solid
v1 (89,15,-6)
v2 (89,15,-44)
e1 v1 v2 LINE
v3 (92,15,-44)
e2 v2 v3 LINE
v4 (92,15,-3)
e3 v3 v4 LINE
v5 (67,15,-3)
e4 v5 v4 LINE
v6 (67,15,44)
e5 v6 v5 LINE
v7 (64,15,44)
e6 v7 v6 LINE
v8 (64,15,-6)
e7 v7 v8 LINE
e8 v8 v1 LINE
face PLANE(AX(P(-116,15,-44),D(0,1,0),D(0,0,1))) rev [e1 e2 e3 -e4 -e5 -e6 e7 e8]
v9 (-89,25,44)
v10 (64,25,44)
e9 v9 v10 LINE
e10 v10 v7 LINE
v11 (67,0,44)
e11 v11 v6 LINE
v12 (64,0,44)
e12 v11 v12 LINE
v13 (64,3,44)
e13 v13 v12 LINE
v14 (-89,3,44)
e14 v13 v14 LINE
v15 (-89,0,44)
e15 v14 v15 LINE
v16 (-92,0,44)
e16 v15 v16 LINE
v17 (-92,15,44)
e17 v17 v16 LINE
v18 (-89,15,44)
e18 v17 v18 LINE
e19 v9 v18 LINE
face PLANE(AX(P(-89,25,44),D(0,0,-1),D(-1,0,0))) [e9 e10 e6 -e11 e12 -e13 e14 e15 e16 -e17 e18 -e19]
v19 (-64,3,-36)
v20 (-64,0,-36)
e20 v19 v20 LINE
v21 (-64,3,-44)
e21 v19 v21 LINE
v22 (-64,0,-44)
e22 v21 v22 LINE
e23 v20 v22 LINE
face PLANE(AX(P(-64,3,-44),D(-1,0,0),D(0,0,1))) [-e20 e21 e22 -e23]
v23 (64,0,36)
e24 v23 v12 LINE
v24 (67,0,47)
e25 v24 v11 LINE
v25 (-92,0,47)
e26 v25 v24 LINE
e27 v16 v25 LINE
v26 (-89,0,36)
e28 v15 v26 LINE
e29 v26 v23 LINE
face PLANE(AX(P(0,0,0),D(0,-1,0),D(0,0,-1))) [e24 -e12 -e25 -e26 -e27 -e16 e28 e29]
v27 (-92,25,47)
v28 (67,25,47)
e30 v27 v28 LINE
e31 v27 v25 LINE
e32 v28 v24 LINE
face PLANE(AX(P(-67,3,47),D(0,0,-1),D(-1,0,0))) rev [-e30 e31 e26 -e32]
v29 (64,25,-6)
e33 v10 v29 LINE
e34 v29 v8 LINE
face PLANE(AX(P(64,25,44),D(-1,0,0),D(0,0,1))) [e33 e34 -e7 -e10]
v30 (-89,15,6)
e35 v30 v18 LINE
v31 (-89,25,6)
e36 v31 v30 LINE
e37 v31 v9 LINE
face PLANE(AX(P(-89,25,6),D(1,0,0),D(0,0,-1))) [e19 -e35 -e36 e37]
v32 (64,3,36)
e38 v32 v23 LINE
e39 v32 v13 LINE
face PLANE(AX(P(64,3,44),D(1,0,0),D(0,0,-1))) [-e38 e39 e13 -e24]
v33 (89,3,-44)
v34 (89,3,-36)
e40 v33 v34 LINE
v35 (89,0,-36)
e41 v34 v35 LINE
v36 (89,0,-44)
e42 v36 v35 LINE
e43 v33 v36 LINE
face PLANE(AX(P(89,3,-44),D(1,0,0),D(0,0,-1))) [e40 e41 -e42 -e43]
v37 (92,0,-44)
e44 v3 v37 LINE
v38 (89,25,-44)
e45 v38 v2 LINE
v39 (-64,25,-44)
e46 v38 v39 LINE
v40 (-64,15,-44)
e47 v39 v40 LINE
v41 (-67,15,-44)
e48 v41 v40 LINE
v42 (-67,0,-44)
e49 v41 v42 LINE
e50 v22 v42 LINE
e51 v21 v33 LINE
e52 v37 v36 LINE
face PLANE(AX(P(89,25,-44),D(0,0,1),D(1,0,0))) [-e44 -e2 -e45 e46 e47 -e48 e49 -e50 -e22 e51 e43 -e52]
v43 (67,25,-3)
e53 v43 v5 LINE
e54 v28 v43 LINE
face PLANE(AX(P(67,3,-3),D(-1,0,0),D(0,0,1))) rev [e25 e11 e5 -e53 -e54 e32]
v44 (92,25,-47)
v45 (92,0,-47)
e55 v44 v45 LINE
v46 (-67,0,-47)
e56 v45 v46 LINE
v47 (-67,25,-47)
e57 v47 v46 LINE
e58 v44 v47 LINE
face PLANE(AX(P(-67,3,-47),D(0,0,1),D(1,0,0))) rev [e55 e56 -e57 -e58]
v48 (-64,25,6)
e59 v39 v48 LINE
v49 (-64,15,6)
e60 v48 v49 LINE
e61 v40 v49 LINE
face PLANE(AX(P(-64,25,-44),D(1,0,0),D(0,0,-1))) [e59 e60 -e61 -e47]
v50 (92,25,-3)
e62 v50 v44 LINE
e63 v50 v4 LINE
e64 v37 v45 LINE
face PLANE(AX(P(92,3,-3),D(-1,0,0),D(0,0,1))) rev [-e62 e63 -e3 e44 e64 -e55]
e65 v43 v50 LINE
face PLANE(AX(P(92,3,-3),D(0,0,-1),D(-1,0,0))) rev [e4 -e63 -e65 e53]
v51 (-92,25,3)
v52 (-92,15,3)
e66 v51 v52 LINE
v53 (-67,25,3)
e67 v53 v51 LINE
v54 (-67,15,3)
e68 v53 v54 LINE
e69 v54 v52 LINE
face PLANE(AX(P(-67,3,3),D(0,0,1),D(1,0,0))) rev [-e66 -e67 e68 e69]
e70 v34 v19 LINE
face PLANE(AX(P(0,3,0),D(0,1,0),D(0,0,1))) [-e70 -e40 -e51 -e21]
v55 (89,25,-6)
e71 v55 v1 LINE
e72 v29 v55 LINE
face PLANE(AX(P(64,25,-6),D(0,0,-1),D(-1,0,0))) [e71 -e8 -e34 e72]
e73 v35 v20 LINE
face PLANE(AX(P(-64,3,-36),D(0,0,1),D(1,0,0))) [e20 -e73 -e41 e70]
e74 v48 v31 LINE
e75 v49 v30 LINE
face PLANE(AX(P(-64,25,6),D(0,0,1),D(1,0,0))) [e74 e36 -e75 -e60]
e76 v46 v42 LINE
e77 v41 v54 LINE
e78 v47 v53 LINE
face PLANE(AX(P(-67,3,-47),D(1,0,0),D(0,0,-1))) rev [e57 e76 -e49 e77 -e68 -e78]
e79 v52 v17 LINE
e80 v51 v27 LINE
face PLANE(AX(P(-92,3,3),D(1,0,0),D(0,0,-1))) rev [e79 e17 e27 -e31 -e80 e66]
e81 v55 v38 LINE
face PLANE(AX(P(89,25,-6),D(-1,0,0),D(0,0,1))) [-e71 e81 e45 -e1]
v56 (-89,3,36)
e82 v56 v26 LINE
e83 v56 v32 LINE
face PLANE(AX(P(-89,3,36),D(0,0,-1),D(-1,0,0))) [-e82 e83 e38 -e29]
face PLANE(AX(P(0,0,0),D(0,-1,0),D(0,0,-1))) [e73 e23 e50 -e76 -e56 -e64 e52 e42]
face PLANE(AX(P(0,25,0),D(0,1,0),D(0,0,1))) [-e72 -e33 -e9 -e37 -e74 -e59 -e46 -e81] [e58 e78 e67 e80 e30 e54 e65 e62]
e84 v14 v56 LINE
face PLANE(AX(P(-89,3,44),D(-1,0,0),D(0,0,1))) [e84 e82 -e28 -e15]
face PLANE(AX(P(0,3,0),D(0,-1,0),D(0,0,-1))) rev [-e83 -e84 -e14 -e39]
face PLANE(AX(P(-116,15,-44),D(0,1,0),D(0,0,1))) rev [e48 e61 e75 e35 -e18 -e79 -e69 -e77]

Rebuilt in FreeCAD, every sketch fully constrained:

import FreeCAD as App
import Part
import Sketcher
from FreeCAD import Vector
Q = App.Units.Quantity

doc = App.newDocument("Part")
params = doc.addObject("Spreadsheet::Sheet", "Params")
for row, (alias, value) in enumerate([
    ("sketch1_width", "159 mm"),
    ("sketch1_width2", "25 mm"),
    ("sketch1_height", "44 mm"),
    ("sketch1_height2", "50 mm"),
    ("pad1_length", "3 mm"),
    ("sketch2_width", "159 mm"),
    ("sketch2_width2", "25 mm"),
    ("sketch2_width3", "153 mm"),
    ("sketch2_height", "44 mm"),
    ("sketch2_height2", "50 mm"),
    ("pad2_length", "22 mm"),
    ("sketch3_height", "88 mm"),
    ("pocket1_length", "208 mm"),
    ("sketch4_width", "153 mm"),
    ("sketch4_height", "8 mm"),
    ("pad3_length", "3 mm"),
], start=1):
    params.set(f"A{row}", alias)
    params.set(f"B{row}", "=" + value)
    params.setAlias(f"B{row}", alias)

body = doc.addObject("PartDesign::Body", "Body")

# Sketch on XZ plane
sketch1 = body.newObject("Sketcher::SketchObject", "Sketch")
sketch1.AttachmentSupport = (doc.getObject("XZ_Plane"), [""])
sketch1.MapMode = "FlatFace"
sketch1.addGeometry([
    Part.LineSegment(Vector(-92, 3, 0), Vector(-92, 47, 0)),  # 0
    Part.LineSegment(Vector(-92, 47, 0), Vector(67, 47, 0)),  # 1
    Part.LineSegment(Vector(67, 47, 0), Vector(67, -3, 0)),  # 2
    Part.LineSegment(Vector(67, -3, 0), Vector(92, -3, 0)),  # 3
    Part.LineSegment(Vector(92, -3, 0), Vector(92, -47, 0)),  # 4
    Part.LineSegment(Vector(92, -47, 0), Vector(-67, -47, 0)),  # 5
    Part.LineSegment(Vector(-67, -47, 0), Vector(-67, 3, 0)),  # 6
    Part.LineSegment(Vector(-67, 3, 0), Vector(-92, 3, 0)),  # 7
], False)
sketch1.addConstraint([
    Sketcher.Constraint("Coincident", 0, 2, 1, 1),
    Sketcher.Constraint("Coincident", 1, 2, 2, 1),
    Sketcher.Constraint("Coincident", 2, 2, 3, 1),
    Sketcher.Constraint("Coincident", 3, 2, 4, 1),
    Sketcher.Constraint("Coincident", 4, 2, 5, 1),
    Sketcher.Constraint("Coincident", 5, 2, 6, 1),
    Sketcher.Constraint("Coincident", 6, 2, 7, 1),
    Sketcher.Constraint("Coincident", 7, 2, 0, 1),
    Sketcher.Constraint("Vertical", 0),
    Sketcher.Constraint("Horizontal", 1),
    Sketcher.Constraint("Vertical", 2),
    Sketcher.Constraint("Horizontal", 3),
    Sketcher.Constraint("Vertical", 4),
    Sketcher.Constraint("Horizontal", 5),
    Sketcher.Constraint("Vertical", 6),
    Sketcher.Constraint("Horizontal", 7),
    Sketcher.Constraint("Symmetric", 0, 2, 4, 2, -1, 1),
    Sketcher.Constraint("Symmetric", 2, 2, 6, 2, -1, 1),
    Sketcher.Constraint("DistanceX", 1, 1, 1, 2, Q("159 mm")),
    Sketcher.Constraint("DistanceX", 3, 1, 3, 2, Q("25 mm")),
    Sketcher.Constraint("DistanceY", 0, 1, 0, 2, Q("44 mm")),
    Sketcher.Constraint("DistanceY", 2, 2, 2, 1, Q("50 mm")),
])
sketch1.setExpression("Constraints[18]", "Params.sketch1_width")
sketch1.setExpression("Constraints[19]", "Params.sketch1_width2")
sketch1.setExpression("Constraints[20]", "Params.sketch1_height")
sketch1.setExpression("Constraints[21]", "Params.sketch1_height2")
pad1 = body.newObject("PartDesign::Pad", "Pad")
pad1.Profile = sketch1
pad1.setExpression("Length", "Params.pad1_length")
pad1.Reversed = True

# Sketch on XZ plane
sketch2 = body.newObject("Sketcher::SketchObject", "Sketch001")
sketch2.AttachmentSupport = (doc.getObject("XZ_Plane"), [""])
sketch2.MapMode = "FlatFace"
sketch2.AttachmentOffset = App.Placement(Vector(0, 0, -3), App.Rotation())
sketch2.addGeometry([
    Part.LineSegment(Vector(92, -3, 0), Vector(92, -47, 0)),  # 0
    Part.LineSegment(Vector(92, -47, 0), Vector(-67, -47, 0)),  # 1
    Part.LineSegment(Vector(-67, -47, 0), Vector(-67, 3, 0)),  # 2
    Part.LineSegment(Vector(-67, 3, 0), Vector(-92, 3, 0)),  # 3
    Part.LineSegment(Vector(-92, 3, 0), Vector(-92, 47, 0)),  # 4
    Part.LineSegment(Vector(-92, 47, 0), Vector(67, 47, 0)),  # 5
    Part.LineSegment(Vector(67, 47, 0), Vector(67, -3, 0)),  # 6
    Part.LineSegment(Vector(67, -3, 0), Vector(92, -3, 0)),  # 7
    Part.LineSegment(Vector(-64, 6, 0), Vector(-64, -44, 0)),  # 8
    Part.LineSegment(Vector(-64, -44, 0), Vector(89, -44, 0)),  # 9
    Part.LineSegment(Vector(89, -44, 0), Vector(89, -6, 0)),  # 10
    Part.LineSegment(Vector(89, -6, 0), Vector(64, -6, 0)),  # 11
    Part.LineSegment(Vector(64, -6, 0), Vector(64, 44, 0)),  # 12
    Part.LineSegment(Vector(64, 44, 0), Vector(-89, 44, 0)),  # 13
    Part.LineSegment(Vector(-89, 44, 0), Vector(-89, 6, 0)),  # 14
    Part.LineSegment(Vector(-89, 6, 0), Vector(-64, 6, 0)),  # 15
], False)
sketch2.addConstraint([
    Sketcher.Constraint("Coincident", 0, 2, 1, 1),
    Sketcher.Constraint("Coincident", 1, 2, 2, 1),
    Sketcher.Constraint("Coincident", 2, 2, 3, 1),
    Sketcher.Constraint("Coincident", 3, 2, 4, 1),
    Sketcher.Constraint("Coincident", 4, 2, 5, 1),
    Sketcher.Constraint("Coincident", 5, 2, 6, 1),
    Sketcher.Constraint("Coincident", 6, 2, 7, 1),
    Sketcher.Constraint("Coincident", 7, 2, 0, 1),
    Sketcher.Constraint("Coincident", 8, 2, 9, 1),
    Sketcher.Constraint("Coincident", 9, 2, 10, 1),
    Sketcher.Constraint("Coincident", 10, 2, 11, 1),
    Sketcher.Constraint("Coincident", 11, 2, 12, 1),
    Sketcher.Constraint("Coincident", 12, 2, 13, 1),
    Sketcher.Constraint("Coincident", 13, 2, 14, 1),
    Sketcher.Constraint("Coincident", 14, 2, 15, 1),
    Sketcher.Constraint("Coincident", 15, 2, 8, 1),
    Sketcher.Constraint("Vertical", 0),
    Sketcher.Constraint("Horizontal", 1),
    Sketcher.Constraint("Vertical", 2),
    Sketcher.Constraint("Horizontal", 3),
    Sketcher.Constraint("Vertical", 4),
    Sketcher.Constraint("Horizontal", 5),
    Sketcher.Constraint("Vertical", 6),
    Sketcher.Constraint("Horizontal", 7),
    Sketcher.Constraint("Vertical", 8),
    Sketcher.Constraint("Horizontal", 9),
    Sketcher.Constraint("Vertical", 10),
    Sketcher.Constraint("Horizontal", 11),
    Sketcher.Constraint("Vertical", 12),
    Sketcher.Constraint("Horizontal", 13),
    Sketcher.Constraint("Vertical", 14),
    Sketcher.Constraint("Horizontal", 15),
    Sketcher.Constraint("Symmetric", 0, 2, 4, 2, -1, 1),
    Sketcher.Constraint("Symmetric", 2, 2, 6, 2, -1, 1),
    Sketcher.Constraint("Symmetric", 8, 2, 12, 2, -1, 1),
    Sketcher.Constraint("Symmetric", 10, 2, 14, 2, -1, 1),
    Sketcher.Constraint("Equal", 7, 11),
    Sketcher.Constraint("Equal", 6, 8),
    Sketcher.Constraint("DistanceX", 1, 2, 1, 1, Q("159 mm")),
    Sketcher.Constraint("DistanceX", 3, 2, 3, 1, Q("25 mm")),
    Sketcher.Constraint("DistanceX", 9, 1, 9, 2, Q("153 mm")),
    Sketcher.Constraint("DistanceY", 0, 2, 0, 1, Q("44 mm")),
    Sketcher.Constraint("DistanceY", 2, 1, 2, 2, Q("50 mm")),
    Sketcher.Constraint("DistanceY", 10, 1, 10, 2, Q("38 mm")),
])
sketch2.setExpression("Constraints[38]", "Params.sketch2_width")
sketch2.setExpression("Constraints[39]", "Params.sketch2_width2")
sketch2.setExpression("Constraints[40]", "Params.sketch2_width3")
sketch2.setExpression("Constraints[41]", "Params.sketch2_height")
sketch2.setExpression("Constraints[42]", "Params.sketch2_height2")
pad2 = body.newObject("PartDesign::Pad", "Pad001")
pad2.Profile = sketch2
pad2.setExpression("Length", "Params.pad2_length")
pad2.Reversed = True

# Sketch on YZ plane
sketch3 = body.newObject("Sketcher::SketchObject", "Sketch002")
sketch3.AttachmentSupport = (doc.getObject("YZ_Plane"), [""])
sketch3.MapMode = "FlatFace"
sketch3.AttachmentOffset = App.Placement(Vector(0, 0, 92), App.Rotation())
sketch3.addGeometry([
    Part.LineSegment(Vector(15, 44, 0), Vector(-4, 44, 0)),
    Part.LineSegment(Vector(-4, 44, 0), Vector(-4, -44, 0)),
    Part.LineSegment(Vector(-4, -44, 0), Vector(15, -44, 0)),
    Part.LineSegment(Vector(15, -44, 0), Vector(15, 44, 0)),
], False)
sketch3.addConstraint([
    Sketcher.Constraint("Coincident", 0, 2, 1, 1),
    Sketcher.Constraint("Coincident", 1, 2, 2, 1),
    Sketcher.Constraint("Coincident", 2, 2, 3, 1),
    Sketcher.Constraint("Coincident", 3, 2, 0, 1),
    Sketcher.Constraint("Horizontal", 0),
    Sketcher.Constraint("Vertical", 1),
    Sketcher.Constraint("Horizontal", 2),
    Sketcher.Constraint("Vertical", 3),
    Sketcher.Constraint("DistanceY", 1, 2, 1, 1, Q("88 mm")),
    Sketcher.Constraint("DistanceY", -1, 1, 0, 2, Q("44 mm")),
    Sketcher.Constraint("DistanceX", -1, 1, 2, 2, Q("15 mm")),
    Sketcher.Constraint("DistanceX", 0, 2, 0, 1, Q("19.191798 mm")),
])
sketch3.setExpression("Constraints[8]", "Params.sketch3_height")
pocket1 = body.newObject("PartDesign::Pocket", "Pocket")
pocket1.Profile = sketch3
pocket1.setExpression("Length", "Params.pocket1_length")

# Sketch on XZ plane
sketch4 = body.newObject("Sketcher::SketchObject", "Sketch003")
sketch4.AttachmentSupport = (doc.getObject("XZ_Plane"), [""])
sketch4.MapMode = "FlatFace"
sketch4.addGeometry([
    Part.LineSegment(Vector(-89, 44, 0), Vector(-89, 36, 0)),  # 0
    Part.LineSegment(Vector(-89, 36, 0), Vector(64, 36, 0)),  # 1
    Part.LineSegment(Vector(64, 36, 0), Vector(64, 44, 0)),  # 2
    Part.LineSegment(Vector(64, 44, 0), Vector(-89, 44, 0)),  # 3
    Part.LineSegment(Vector(-64, -36, 0), Vector(-64, -44, 0)),  # 4
    Part.LineSegment(Vector(-64, -44, 0), Vector(89, -44, 0)),  # 5
    Part.LineSegment(Vector(89, -44, 0), Vector(89, -36, 0)),  # 6
    Part.LineSegment(Vector(89, -36, 0), Vector(-64, -36, 0)),  # 7
], False)
sketch4.addConstraint([
    Sketcher.Constraint("Coincident", 0, 2, 1, 1),
    Sketcher.Constraint("Coincident", 1, 2, 2, 1),
    Sketcher.Constraint("Coincident", 2, 2, 3, 1),
    Sketcher.Constraint("Coincident", 3, 2, 0, 1),
    Sketcher.Constraint("Coincident", 4, 2, 5, 1),
    Sketcher.Constraint("Coincident", 5, 2, 6, 1),
    Sketcher.Constraint("Coincident", 6, 2, 7, 1),
    Sketcher.Constraint("Coincident", 7, 2, 4, 1),
    Sketcher.Constraint("Vertical", 0),
    Sketcher.Constraint("Horizontal", 1),
    Sketcher.Constraint("Vertical", 2),
    Sketcher.Constraint("Horizontal", 3),
    Sketcher.Constraint("Vertical", 4),
    Sketcher.Constraint("Horizontal", 5),
    Sketcher.Constraint("Vertical", 6),
    Sketcher.Constraint("Horizontal", 7),
    Sketcher.Constraint("Symmetric", 2, 2, 4, 2, -1, 1),
    Sketcher.Constraint("Symmetric", 0, 2, 6, 2, -1, 1),
    Sketcher.Constraint("DistanceX", 1, 1, 1, 2, Q("153 mm")),
    Sketcher.Constraint("DistanceY", 0, 2, 0, 1, Q("8 mm")),
    Sketcher.Constraint("DistanceX", 0, 2, -1, 1, Q("89 mm")),
    Sketcher.Constraint("DistanceY", -1, 1, 0, 2, Q("36 mm")),
])
sketch4.setExpression("Constraints[18]", "Params.sketch4_width")
sketch4.setExpression("Constraints[19]", "Params.sketch4_height")
pad3 = body.newObject("PartDesign::Pad", "Pad002")
pad3.Profile = sketch4
pad3.setExpression("Length", "Params.pad3_length")
pad3.Reversed = True

doc.recompute()
